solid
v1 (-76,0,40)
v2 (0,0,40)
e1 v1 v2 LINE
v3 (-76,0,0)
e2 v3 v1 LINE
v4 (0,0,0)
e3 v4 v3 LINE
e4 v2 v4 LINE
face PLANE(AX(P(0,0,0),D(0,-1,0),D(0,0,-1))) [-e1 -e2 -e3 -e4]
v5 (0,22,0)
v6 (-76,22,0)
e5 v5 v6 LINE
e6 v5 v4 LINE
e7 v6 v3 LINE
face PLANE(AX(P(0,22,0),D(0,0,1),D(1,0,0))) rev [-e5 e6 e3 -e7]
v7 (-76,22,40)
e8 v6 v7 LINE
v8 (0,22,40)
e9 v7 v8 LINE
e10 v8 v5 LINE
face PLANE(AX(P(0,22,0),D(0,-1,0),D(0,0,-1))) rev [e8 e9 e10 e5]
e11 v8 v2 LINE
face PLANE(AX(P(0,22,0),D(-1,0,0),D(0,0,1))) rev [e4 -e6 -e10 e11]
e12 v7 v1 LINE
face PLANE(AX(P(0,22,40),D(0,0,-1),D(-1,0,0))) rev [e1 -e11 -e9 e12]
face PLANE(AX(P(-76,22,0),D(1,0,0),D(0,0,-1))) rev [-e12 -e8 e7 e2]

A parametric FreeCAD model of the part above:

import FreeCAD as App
import Part
import Sketcher
from FreeCAD import Vector
Q = App.Units.Quantity


def add_polygon(sketch, points):
    """Adds a closed chain of lines whose ends are joined by coincident constraints."""
    first, n = sketch.GeometryCount, len(points)
    for a, b in zip(points, points[1:] + points[:1]):
        sketch.addGeometry(Part.LineSegment(App.Vector(*a, 0), App.Vector(*b, 0)), False)
    for i in range(n):
        sketch.addConstraint(Sketcher.Constraint("Coincident", first + i, 2, first + (i + 1) % n, 1))

doc = App.newDocument("Part")
params = doc.addObject("Spreadsheet::Sheet", "Params")
for row, (alias, value) in enumerate([
    ("sketch1_width", "76 mm"),
    ("sketch1_height", "40 mm"),
    ("pad1_length", "22 mm"),
], start=1):
    params.set(f"A{row}", alias)
    params.set(f"B{row}", "=" + value)
    params.setAlias(f"B{row}", alias)

body = doc.addObject("PartDesign::Body", "Body")

sketch1 = body.newObject("Sketcher::SketchObject", "Sketch")
sketch1.AttachmentSupport = (doc.getObject("XZ_Plane"), [""])
sketch1.MapMode = "FlatFace"
add_polygon(sketch1, [(-76, 0), (-76, 40), (0, 40), (0, 0)])
sketch1.addConstraint(Sketcher.Constraint("Vertical", 0))
sketch1.addConstraint(Sketcher.Constraint("Horizontal", 1))
sketch1.addConstraint(Sketcher.Constraint("Vertical", 2))
sketch1.addConstraint(Sketcher.Constraint("Horizontal", 3))
sketch1.addConstraint(Sketcher.Constraint("Coincident", 2, 2, -1, 1))
sketch1.addConstraint(Sketcher.Constraint("DistanceX", 1, 1, 1, 2, Q("76 mm")))
sketch1.addConstraint(Sketcher.Constraint("DistanceY", 0, 1, 0, 2, Q("40 mm")))
sketch1.setExpression("Constraints[9]", "Params.sketch1_width")
sketch1.setExpression("Constraints[10]", "Params.sketch1_height")
pad1 = body.newObject("PartDesign::Pad", "Pad")
pad1.Profile = sketch1
pad1.setExpression("Length", "Params.pad1_length")
pad1.Reversed = True

doc.recompute()
